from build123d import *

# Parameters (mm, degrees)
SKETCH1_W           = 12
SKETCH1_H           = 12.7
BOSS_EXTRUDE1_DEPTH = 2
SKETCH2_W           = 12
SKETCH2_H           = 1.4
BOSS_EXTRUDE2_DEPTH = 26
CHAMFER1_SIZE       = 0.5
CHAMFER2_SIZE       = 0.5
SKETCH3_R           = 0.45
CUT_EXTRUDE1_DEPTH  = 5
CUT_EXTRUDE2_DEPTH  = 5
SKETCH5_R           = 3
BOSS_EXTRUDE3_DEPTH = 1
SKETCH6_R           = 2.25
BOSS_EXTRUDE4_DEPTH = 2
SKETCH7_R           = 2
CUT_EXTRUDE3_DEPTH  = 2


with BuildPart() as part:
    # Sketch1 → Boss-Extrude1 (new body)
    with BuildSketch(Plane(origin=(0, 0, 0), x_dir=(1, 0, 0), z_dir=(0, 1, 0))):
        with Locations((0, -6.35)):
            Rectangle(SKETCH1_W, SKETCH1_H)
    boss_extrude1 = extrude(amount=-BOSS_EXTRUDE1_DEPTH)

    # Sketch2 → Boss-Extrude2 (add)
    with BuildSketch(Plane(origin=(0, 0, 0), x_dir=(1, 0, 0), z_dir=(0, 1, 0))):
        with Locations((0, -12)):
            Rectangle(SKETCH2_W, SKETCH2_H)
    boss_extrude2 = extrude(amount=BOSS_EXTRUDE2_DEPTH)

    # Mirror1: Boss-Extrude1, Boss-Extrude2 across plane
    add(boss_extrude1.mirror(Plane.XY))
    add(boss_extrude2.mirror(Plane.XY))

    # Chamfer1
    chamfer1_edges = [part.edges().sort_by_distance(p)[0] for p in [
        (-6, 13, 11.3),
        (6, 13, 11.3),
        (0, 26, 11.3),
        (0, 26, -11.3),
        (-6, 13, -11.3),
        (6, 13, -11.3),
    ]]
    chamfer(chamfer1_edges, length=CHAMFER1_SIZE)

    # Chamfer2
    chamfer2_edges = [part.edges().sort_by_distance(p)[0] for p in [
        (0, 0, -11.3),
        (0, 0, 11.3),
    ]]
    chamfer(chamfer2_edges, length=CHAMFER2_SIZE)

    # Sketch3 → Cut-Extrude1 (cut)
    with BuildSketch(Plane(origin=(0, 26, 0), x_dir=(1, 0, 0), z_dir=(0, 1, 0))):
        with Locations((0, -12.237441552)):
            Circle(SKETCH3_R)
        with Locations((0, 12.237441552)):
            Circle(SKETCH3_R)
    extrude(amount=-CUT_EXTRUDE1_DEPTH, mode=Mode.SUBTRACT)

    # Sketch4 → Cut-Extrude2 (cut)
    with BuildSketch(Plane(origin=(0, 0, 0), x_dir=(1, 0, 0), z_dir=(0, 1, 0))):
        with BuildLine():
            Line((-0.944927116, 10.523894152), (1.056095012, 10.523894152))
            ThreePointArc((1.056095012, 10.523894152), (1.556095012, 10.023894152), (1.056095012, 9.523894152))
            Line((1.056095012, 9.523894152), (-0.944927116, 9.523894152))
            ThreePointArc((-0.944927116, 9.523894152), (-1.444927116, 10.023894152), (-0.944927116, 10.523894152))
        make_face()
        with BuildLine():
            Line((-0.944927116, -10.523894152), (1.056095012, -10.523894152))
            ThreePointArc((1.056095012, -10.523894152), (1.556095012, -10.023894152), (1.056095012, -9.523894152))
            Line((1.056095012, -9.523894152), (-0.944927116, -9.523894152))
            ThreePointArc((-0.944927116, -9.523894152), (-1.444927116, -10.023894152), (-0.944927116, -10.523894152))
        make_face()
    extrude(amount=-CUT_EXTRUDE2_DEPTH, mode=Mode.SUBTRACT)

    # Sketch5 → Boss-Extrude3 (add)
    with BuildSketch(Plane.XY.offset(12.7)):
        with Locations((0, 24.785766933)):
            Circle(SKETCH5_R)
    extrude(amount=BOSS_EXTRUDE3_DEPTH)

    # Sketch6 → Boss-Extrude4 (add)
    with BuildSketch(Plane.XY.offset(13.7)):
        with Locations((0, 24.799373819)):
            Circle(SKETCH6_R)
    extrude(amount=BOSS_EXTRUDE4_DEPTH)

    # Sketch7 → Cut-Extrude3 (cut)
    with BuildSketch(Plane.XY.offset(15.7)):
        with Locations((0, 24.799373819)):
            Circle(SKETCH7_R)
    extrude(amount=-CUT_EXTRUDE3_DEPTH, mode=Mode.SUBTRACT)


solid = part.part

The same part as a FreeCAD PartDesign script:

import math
import FreeCAD as App
import Part
import Sketcher

V = App.Vector
Q = App.Units.Quantity


def edges_at(feature, points):
    """Names of the edges that pass closest to the given points."""
    edges = feature.Shape.Edges
    near = lambda p: min(range(len(edges)), key=lambda i: edges[i].distToShape(Part.Vertex(*p))[0])
    return sorted({f"Edge{near(p) + 1}" for p in points})


def add_polygon(sketch, points):
    """Adds a closed chain of lines whose ends are joined by coincident constraints."""
    first, n = sketch.GeometryCount, len(points)
    for a, b in zip(points, points[1:] + points[:1]):
        sketch.addGeometry(Part.LineSegment(App.Vector(*a, 0), App.Vector(*b, 0)), False)
    for i in range(n):
        sketch.addConstraint(Sketcher.Constraint("Coincident", first + i, 2, first + (i + 1) % n, 1))

doc = App.newDocument("Part")
body = doc.addObject("PartDesign::Body", "Body")

# Sketch on XZ plane
sketch1 = doc.addObject("Sketcher::SketchObject", "Sketch")
body.addObject(sketch1)
sketch1.AttachmentSupport = (doc.XZ_Plane, [""])
sketch1.MapMode = "FlatFace"
add_polygon(sketch1, [(-6, 0), (-6, 13), (6, 13), (6, 0)])  # lines 0-3
sketch1.addConstraint([
    Sketcher.Constraint("Vertical", 0),
    Sketcher.Constraint("Horizontal", 1),
    Sketcher.Constraint("Vertical", 2),
    Sketcher.Constraint("Horizontal", 3),
    Sketcher.Constraint("Symmetric", 2, 2, 3, 2, -1, 1),
    Sketcher.Constraint("DistanceX", 1, 1, 1, 2, Q("12 mm")),
    Sketcher.Constraint("DistanceY", 0, 1, 0, 2, Q("12.7 mm")),
])
pad1 = doc.addObject("PartDesign::Pad", "Pad")
body.addObject(pad1)
pad1.Profile = sketch1
pad1.Length = 2

# Sketch on XZ plane
sketch2 = doc.addObject("Sketcher::SketchObject", "Sketch001")
body.addObject(sketch2)
sketch2.AttachmentSupport = (doc.XZ_Plane, [""])
sketch2.MapMode = "FlatFace"
add_polygon(sketch2, [(-6, 11.3), (-6, 12.7), (6, 12.7), (6, 11.3)])  # lines 0-3
sketch2.addConstraint([
    Sketcher.Constraint("Vertical", 0),
    Sketcher.Constraint("Horizontal", 1),
    Sketcher.Constraint("Vertical", 2),
    Sketcher.Constraint("Horizontal", 3),
    Sketcher.Constraint("DistanceX", 1, 1, 1, 2, Q("12 mm")),
    Sketcher.Constraint("DistanceY", 0, 1, 0, 2, Q("1.4 mm")),
    Sketcher.Constraint("DistanceX", 0, 2, -1, 1, Q("6 mm")),
    Sketcher.Constraint("DistanceY", -1, 1, 0, 2, Q("12.7 mm")),
])
pad2 = doc.addObject("PartDesign::Pad", "Pad001")
body.addObject(pad2)
pad2.Profile = sketch2
pad2.Length = 26
pad2.Reversed = True
doc.recompute()

mirrored = doc.addObject("PartDesign::Mirrored", "Mirrored")
body.addObject(mirrored)
mirrored.Originals = [pad1, pad2]
mirrored.MirrorPlane = (doc.XY_Plane, [""])
body.Tip = mirrored
doc.recompute()

chamfer = doc.addObject("PartDesign::Chamfer", "Chamfer")
body.addObject(chamfer)
chamfer.Base = (mirrored, edges_at(mirrored, [
    (-6, 13, 11.3),
    (6, 13, 11.3),
    (0, 26, 11.3),
    (0, 26, -11.3),
    (-6, 13, -11.3),
    (6, 13, -11.3),
]))
chamfer.Size = 0.5
doc.recompute()

chamfer2 = doc.addObject("PartDesign::Chamfer", "Chamfer001")
body.addObject(chamfer2)
chamfer2.Base = (chamfer, edges_at(chamfer, [(0, 0, -11.3), (0, 0, 11.3)]))
chamfer2.Size = 0.5

# Sketch on XZ plane
sketch3 = doc.addObject("Sketcher::SketchObject", "Sketch002")
body.addObject(sketch3)
sketch3.AttachmentSupport = (doc.XZ_Plane, [""])
sketch3.MapMode = "FlatFace"
sketch3.AttachmentOffset = App.Placement(V(0, 0, -26), App.Rotation())
sketch3.addGeometry([
    Part.Circle(V(0, 12.24, 0), V(0, 0, 1), 0.45),
    Part.Circle(V(0, -12.24, 0), V(0, 0, 1), 0.45),
], False)
sketch3.addConstraint([
    Sketcher.Constraint("Equal", 0, 1),
    Sketcher.Constraint("Symmetric", 0, 3, 1, 3, -1, 1),
    Sketcher.Constraint("PointOnObject", 0, 3, -2),
    Sketcher.Constraint("Diameter", 0, Q("0.9 mm")),
    Sketcher.Constraint("DistanceY", -1, 1, 0, 3, Q("12.237442 mm")),
])
pocket1 = doc.addObject("PartDesign::Pocket", "Pocket")
body.addObject(pocket1)
pocket1.Profile = sketch3
pocket1.Length = 5
pocket1.Reversed = True

# Sketch on XZ plane
sketch4 = doc.addObject("Sketcher::SketchObject", "Sketch003")
body.addObject(sketch4)
sketch4.AttachmentSupport = (doc.XZ_Plane, [""])
sketch4.MapMode = "FlatFace"
sketch4.addGeometry([
    Part.LineSegment(V(1.1, -10.5, 0), V(-0.9, -10.5, 0)),  # 0
    Part.ArcOfCircle(Part.Circle(V(-0.9, -10, 0), V(0, 0, 1), 0.5), math.radians(90), math.radians(270)),  # 1
    Part.LineSegment(V(-0.9, -9.5, 0), V(1.1, -9.5, 0)),  # 2
    Part.ArcOfCircle(Part.Circle(V(1.1, -10, 0), V(0, 0, 1), 0.5), math.radians(-90), math.radians(90)),  # 3
    Part.LineSegment(V(-0.9, 10.5, 0), V(1.1, 10.5, 0)),  # 4
    Part.ArcOfCircle(Part.Circle(V(1.1, 10, 0), V(0, 0, 1), 0.5), math.radians(-90), math.radians(90)),  # 5
    Part.LineSegment(V(1.1, 9.5, 0), V(-0.9, 9.5, 0)),  # 6
    Part.ArcOfCircle(Part.Circle(V(-0.9, 10, 0), V(0, 0, 1), 0.5), math.radians(90), math.radians(270)),  # 7
], False)
sketch4.addConstraint([
    Sketcher.Constraint("Tangent", 0, 2, 1, 2),
    Sketcher.Constraint("Tangent", 1, 1, 2, 1),
    Sketcher.Constraint("Tangent", 2, 2, 3, 2),
    Sketcher.Constraint("Tangent", 3, 1, 0, 1),
    Sketcher.Constraint("Tangent", 4, 2, 5, 2),
    Sketcher.Constraint("Tangent", 5, 1, 6, 1),
    Sketcher.Constraint("Tangent", 6, 2, 7, 2),
    Sketcher.Constraint("Tangent", 7, 1, 4, 1),
    Sketcher.Constraint("Horizontal", 0),
    Sketcher.Constraint("Horizontal", 2),
    Sketcher.Constraint("Horizontal", 4),
    Sketcher.Constraint("Horizontal", 6),
    Sketcher.Constraint("Equal", 3, 5),
    Sketcher.Constraint("Symmetric", 3, 3, 5, 3, -1),
    Sketcher.Constraint("Vertical", 1, 3, 7, 3),
    Sketcher.Constraint("Radius", 1, Q("0.5 mm")),
    Sketcher.Constraint("DistanceX", 0, 2, 0, 1, Q("2.001022 mm")),
    Sketcher.Constraint("DistanceY", 3, 3, 5, 3, Q("20.047788 mm")),
    Sketcher.Constraint("DistanceX", 1, 3, -1, 1, Q("0.944927 mm")),
])
pocket2 = doc.addObject("PartDesign::Pocket", "Pocket001")
body.addObject(pocket2)
pocket2.Profile = sketch4
pocket2.Length = 5
pocket2.Reversed = True

# Sketch on XY plane
sketch5 = doc.addObject("Sketcher::SketchObject", "Sketch004")
body.addObject(sketch5)
sketch5.AttachmentSupport = (doc.XY_Plane, [""])
sketch5.MapMode = "FlatFace"
sketch5.AttachmentOffset = App.Placement(V(0, 0, 12.7), App.Rotation())
sketch5.addGeometry(Part.Circle(V(0, 24.8, 0), V(0, 0, 1), 3), False)
sketch5.addConstraint([
    Sketcher.Constraint("PointOnObject", 0, 3, -2),
    Sketcher.Constraint("Diameter", 0, Q("6 mm")),
    Sketcher.Constraint("DistanceY", -1, 1, 0, 3, Q("24.785767 mm")),
])
pad3 = doc.addObject("PartDesign::Pad", "Pad002")
body.addObject(pad3)
pad3.Profile = sketch5
pad3.Length = 1

# Sketch on XY plane
sketch6 = doc.addObject("Sketcher::SketchObject", "Sketch005")
body.addObject(sketch6)
sketch6.AttachmentSupport = (doc.XY_Plane, [""])
sketch6.MapMode = "FlatFace"
sketch6.AttachmentOffset = App.Placement(V(0, 0, 13.7), App.Rotation())
sketch6.addGeometry(Part.Circle(V(0, 24.8, 0), V(0, 0, 1), 2.2), False)
sketch6.addConstraint([
    Sketcher.Constraint("PointOnObject", 0, 3, -2),
    Sketcher.Constraint("Diameter", 0, Q("4.5 mm")),
    Sketcher.Constraint("DistanceY", -1, 1, 0, 3, Q("24.799374 mm")),
])
pad4 = doc.addObject("PartDesign::Pad", "Pad003")
body.addObject(pad4)
pad4.Profile = sketch6
pad4.Length = 2

# Sketch on XY plane
sketch7 = doc.addObject("Sketcher::SketchObject", "Sketch006")
body.addObject(sketch7)
sketch7.AttachmentSupport = (doc.XY_Plane, [""])
sketch7.MapMode = "FlatFace"
sketch7.AttachmentOffset = App.Placement(V(0, 0, 15.7), App.Rotation())
sketch7.addGeometry(Part.Circle(V(0, 24.8, 0), V(0, 0, 1), 2), False)
sketch7.addConstraint([
    Sketcher.Constraint("PointOnObject", 0, 3, -2),
    Sketcher.Constraint("Diameter", 0, Q("4 mm")),
    Sketcher.Constraint("DistanceY", -1, 1, 0, 3, Q("24.799374 mm")),
])
pocket3 = doc.addObject("PartDesign::Pocket", "Pocket002")
body.addObject(pocket3)
pocket3.Profile = sketch7
pocket3.Length = 2

doc.recompute()
